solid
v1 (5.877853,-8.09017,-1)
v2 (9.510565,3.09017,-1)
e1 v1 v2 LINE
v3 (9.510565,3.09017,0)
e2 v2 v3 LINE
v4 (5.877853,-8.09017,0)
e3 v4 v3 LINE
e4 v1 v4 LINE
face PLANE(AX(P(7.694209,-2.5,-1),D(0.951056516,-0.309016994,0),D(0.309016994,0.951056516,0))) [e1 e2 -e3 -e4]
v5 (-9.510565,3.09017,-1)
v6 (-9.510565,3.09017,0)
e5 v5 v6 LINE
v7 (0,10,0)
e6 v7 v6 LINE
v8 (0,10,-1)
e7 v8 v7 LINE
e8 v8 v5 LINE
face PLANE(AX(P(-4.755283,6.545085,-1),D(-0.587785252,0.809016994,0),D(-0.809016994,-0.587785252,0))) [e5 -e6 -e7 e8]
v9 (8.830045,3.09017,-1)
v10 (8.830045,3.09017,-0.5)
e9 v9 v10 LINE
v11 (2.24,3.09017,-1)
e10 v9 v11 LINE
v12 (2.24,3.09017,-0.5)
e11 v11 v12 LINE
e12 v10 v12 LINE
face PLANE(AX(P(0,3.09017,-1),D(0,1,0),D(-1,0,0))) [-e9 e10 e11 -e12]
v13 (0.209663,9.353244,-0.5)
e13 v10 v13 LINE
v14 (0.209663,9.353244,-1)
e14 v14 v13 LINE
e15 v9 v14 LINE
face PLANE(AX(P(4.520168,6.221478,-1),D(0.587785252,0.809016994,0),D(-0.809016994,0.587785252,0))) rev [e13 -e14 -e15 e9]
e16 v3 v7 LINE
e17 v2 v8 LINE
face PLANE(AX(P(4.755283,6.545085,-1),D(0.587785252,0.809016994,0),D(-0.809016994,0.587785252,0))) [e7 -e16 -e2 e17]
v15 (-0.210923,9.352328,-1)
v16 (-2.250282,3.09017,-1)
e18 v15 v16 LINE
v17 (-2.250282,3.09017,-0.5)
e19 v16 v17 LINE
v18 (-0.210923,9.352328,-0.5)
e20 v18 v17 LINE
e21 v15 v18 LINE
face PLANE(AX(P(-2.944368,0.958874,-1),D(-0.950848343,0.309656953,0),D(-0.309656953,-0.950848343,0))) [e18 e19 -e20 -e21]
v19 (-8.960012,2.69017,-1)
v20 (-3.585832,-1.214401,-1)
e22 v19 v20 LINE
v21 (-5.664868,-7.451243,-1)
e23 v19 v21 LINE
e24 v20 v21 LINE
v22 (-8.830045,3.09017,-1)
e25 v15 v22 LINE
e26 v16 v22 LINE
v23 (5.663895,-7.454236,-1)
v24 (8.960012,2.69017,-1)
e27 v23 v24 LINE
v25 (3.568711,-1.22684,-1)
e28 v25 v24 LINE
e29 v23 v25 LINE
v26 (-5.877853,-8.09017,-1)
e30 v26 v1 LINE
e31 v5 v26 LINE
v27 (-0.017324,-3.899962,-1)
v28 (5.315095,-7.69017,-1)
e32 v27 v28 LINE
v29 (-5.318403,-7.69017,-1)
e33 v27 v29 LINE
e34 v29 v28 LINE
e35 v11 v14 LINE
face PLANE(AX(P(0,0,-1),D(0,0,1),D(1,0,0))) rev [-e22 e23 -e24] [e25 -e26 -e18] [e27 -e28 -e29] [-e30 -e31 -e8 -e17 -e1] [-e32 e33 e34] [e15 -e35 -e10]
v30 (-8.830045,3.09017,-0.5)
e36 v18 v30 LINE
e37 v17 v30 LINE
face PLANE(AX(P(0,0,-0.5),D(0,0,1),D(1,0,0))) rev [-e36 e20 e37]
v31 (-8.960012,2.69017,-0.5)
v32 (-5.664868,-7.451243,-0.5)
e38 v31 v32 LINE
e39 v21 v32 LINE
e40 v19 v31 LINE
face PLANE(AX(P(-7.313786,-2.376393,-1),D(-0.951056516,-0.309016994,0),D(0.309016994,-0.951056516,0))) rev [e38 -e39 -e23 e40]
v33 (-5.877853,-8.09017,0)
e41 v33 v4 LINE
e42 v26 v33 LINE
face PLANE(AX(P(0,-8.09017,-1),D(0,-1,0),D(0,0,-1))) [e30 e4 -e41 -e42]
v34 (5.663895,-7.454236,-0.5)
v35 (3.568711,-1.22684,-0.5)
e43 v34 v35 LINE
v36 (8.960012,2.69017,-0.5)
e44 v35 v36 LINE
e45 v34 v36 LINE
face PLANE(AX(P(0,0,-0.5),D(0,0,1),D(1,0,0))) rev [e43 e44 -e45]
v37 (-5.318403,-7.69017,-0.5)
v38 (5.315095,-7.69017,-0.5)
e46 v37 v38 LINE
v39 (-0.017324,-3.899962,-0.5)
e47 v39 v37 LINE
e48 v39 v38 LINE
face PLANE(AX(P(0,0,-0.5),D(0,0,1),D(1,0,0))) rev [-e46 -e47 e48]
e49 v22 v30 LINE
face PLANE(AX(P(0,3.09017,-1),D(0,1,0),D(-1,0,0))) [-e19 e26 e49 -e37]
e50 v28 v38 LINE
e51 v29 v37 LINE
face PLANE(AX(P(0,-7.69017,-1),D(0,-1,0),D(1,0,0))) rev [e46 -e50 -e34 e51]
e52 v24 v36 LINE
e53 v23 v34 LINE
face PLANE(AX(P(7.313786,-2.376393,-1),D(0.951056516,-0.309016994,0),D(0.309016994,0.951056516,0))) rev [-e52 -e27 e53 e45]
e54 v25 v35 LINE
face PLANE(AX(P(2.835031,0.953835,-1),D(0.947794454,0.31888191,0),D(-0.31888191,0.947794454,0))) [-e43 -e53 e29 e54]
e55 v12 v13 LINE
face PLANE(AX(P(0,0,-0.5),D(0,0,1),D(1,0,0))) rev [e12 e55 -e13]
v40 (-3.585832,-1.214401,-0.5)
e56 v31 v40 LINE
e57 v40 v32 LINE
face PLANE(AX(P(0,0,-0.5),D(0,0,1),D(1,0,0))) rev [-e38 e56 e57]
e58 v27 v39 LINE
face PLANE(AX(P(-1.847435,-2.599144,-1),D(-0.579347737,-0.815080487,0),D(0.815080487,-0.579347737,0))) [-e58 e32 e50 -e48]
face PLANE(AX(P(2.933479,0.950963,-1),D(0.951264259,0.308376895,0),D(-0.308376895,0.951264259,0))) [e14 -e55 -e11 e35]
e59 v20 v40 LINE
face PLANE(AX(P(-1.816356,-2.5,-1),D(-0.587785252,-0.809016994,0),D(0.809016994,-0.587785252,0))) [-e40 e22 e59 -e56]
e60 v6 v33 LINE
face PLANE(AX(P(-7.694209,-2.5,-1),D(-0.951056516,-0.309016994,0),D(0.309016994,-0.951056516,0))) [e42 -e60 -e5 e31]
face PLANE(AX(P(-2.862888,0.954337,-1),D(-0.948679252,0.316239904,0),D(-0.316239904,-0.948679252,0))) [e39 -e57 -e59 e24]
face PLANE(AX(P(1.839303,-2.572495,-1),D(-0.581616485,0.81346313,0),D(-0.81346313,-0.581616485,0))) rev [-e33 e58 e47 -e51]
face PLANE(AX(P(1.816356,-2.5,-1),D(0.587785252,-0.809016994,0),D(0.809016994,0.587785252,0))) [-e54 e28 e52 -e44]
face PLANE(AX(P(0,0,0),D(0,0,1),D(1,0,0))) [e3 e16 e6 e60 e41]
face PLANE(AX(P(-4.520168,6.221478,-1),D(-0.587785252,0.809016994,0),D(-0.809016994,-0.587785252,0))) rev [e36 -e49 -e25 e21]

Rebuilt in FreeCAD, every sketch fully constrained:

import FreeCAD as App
import Part
import Sketcher
from FreeCAD import Vector
Q = App.Units.Quantity

doc = App.newDocument("Part")
params = doc.addObject("Spreadsheet::Sheet", "Params")
for row, (alias, value) in enumerate([
    ("pad1_length", "1 mm"),
    ("pad2_length", "0.5 mm"),
], start=1):
    params.set(f"A{row}", alias)
    params.set(f"B{row}", "=" + value)
    params.setAlias(f"B{row}", alias)

body = doc.addObject("PartDesign::Body", "Body")

sketch1 = doc.addObject("Sketcher::SketchObject", "Sketch")
body.addObject(sketch1)
sketch1.AttachmentSupport = (doc.XY_Plane, [""])
sketch1.MapMode = "FlatFace"
sketch1.addGeometry(Part.LineSegment(Vector(6, -8, 0), Vector(10, 3, 0)), False)
sketch1.addGeometry(Part.LineSegment(Vector(10, 3, 0), Vector(0, 10, 0)), False)
sketch1.addGeometry(Part.LineSegment(Vector(0, 10, 0), Vector(-10, 3, 0)), False)
sketch1.addGeometry(Part.LineSegment(Vector(-10, 3, 0), Vector(-6, -8, 0)), False)
sketch1.addGeometry(Part.LineSegment(Vector(-6, -8, 0), Vector(6, -8, 0)), False)
sketch1.addGeometry(Part.LineSegment(Vector(0, 9, 0), Vector(9, 3, 0)), False)
sketch1.addGeometry(Part.LineSegment(Vector(9, 3, 0), Vector(2, 3, 0)), False)
sketch1.addGeometry(Part.LineSegment(Vector(2, 3, 0), Vector(0, 9, 0)), False)
sketch1.addGeometry(Part.LineSegment(Vector(-9, 3, 0), Vector(0, 9, 0)), False)
sketch1.addGeometry(Part.LineSegment(Vector(0, 9, 0), Vector(-2, 3, 0)), False)
sketch1.addGeometry(Part.LineSegment(Vector(-2, 3, 0), Vector(-9, 3, 0)), False)
sketch1.addGeometry(Part.LineSegment(Vector(-6, -7, 0), Vector(-9, 3, 0)), False)
sketch1.addGeometry(Part.LineSegment(Vector(-9, 3, 0), Vector(-4, -1, 0)), False)
sketch1.addGeometry(Part.LineSegment(Vector(-4, -1, 0), Vector(-6, -7, 0)), False)
sketch1.addGeometry(Part.LineSegment(Vector(5, -8, 0), Vector(-5, -8, 0)), False)
sketch1.addGeometry(Part.LineSegment(Vector(-5, -8, 0), Vector(0, -4, 0)), False)
sketch1.addGeometry(Part.LineSegment(Vector(0, -4, 0), Vector(5, -8, 0)), False)
sketch1.addGeometry(Part.LineSegment(Vector(9, 3, 0), Vector(6, -7, 0)), False)
sketch1.addGeometry(Part.LineSegment(Vector(6, -7, 0), Vector(4, -1, 0)), False)
sketch1.addGeometry(Part.LineSegment(Vector(4, -1, 0), Vector(9, 3, 0)), False)
sketch1.addConstraint(Sketcher.Constraint("Coincident", 0, 2, 1, 1))
sketch1.addConstraint(Sketcher.Constraint("Coincident", 1, 2, 2, 1))
sketch1.addConstraint(Sketcher.Constraint("Coincident", 2, 2, 3, 1))
sketch1.addConstraint(Sketcher.Constraint("Coincident", 3, 2, 4, 1))
sketch1.addConstraint(Sketcher.Constraint("Coincident", 4, 2, 0, 1))
sketch1.addConstraint(Sketcher.Constraint("Coincident", 5, 2, 6, 1))
sketch1.addConstraint(Sketcher.Constraint("Coincident", 6, 2, 7, 1))
sketch1.addConstraint(Sketcher.Constraint("Coincident", 7, 2, 5, 1))
sketch1.addConstraint(Sketcher.Constraint("Coincident", 8, 2, 9, 1))
sketch1.addConstraint(Sketcher.Constraint("Coincident", 9, 2, 10, 1))
sketch1.addConstraint(Sketcher.Constraint("Coincident", 10, 2, 8, 1))
sketch1.addConstraint(Sketcher.Constraint("Coincident", 11, 2, 12, 1))
sketch1.addConstraint(Sketcher.Constraint("Coincident", 12, 2, 13, 1))
sketch1.addConstraint(Sketcher.Constraint("Coincident", 13, 2, 11, 1))
sketch1.addConstraint(Sketcher.Constraint("Coincident", 14, 2, 15, 1))
sketch1.addConstraint(Sketcher.Constraint("Coincident", 15, 2, 16, 1))
sketch1.addConstraint(Sketcher.Constraint("Coincident", 16, 2, 14, 1))
sketch1.addConstraint(Sketcher.Constraint("Coincident", 17, 2, 18, 1))
sketch1.addConstraint(Sketcher.Constraint("Coincident", 18, 2, 19, 1))
sketch1.addConstraint(Sketcher.Constraint("Coincident", 19, 2, 17, 1))
sketch1.addConstraint(Sketcher.Constraint("Horizontal", 4))
sketch1.addConstraint(Sketcher.Constraint("Horizontal", 6))
sketch1.addConstraint(Sketcher.Constraint("Horizontal", 10))
sketch1.addConstraint(Sketcher.Constraint("Horizontal", 14))
sketch1.addConstraint(Sketcher.Constraint("Symmetric", 0, 2, 2, 2, -2))
sketch1.addConstraint(Sketcher.Constraint("Symmetric", 5, 2, 10, 2, -2))
sketch1.addConstraint(Sketcher.Constraint("Symmetric", 11, 2, 19, 2, -2))
sketch1.addConstraint(Sketcher.Constraint("PointOnObject", 1, 2, -2))
sketch1.addConstraint(Sketcher.Constraint("Parallel", 1, 5))
sketch1.addConstraint(Sketcher.Constraint("Parallel", 2, 8))
sketch1.addConstraint(Sketcher.Constraint("Parallel", 3, 11))
sketch1.addConstraint(Sketcher.Constraint("Parallel", 5, 12))
sketch1.addConstraint(Sketcher.Constraint("Parallel", 0, 17))
sketch1.addConstraint(Sketcher.Constraint("Parallel", 8, 19))
sketch1.addConstraint(Sketcher.Constraint("Horizontal", 2, 2, 5, 2))
sketch1.addConstraint(Sketcher.Constraint("Equal", 0, 1))
sketch1.addConstraint(Sketcher.Constraint("Equal", 2, 3))
sketch1.addConstraint(Sketcher.Constraint("Angle", 0, Q("72 deg")))
sketch1.addConstraint(Sketcher.Constraint("Angle", 1, Q("144 deg")))
sketch1.addConstraint(Sketcher.Constraint("DistanceY", -1, 1, 1, 2, Q("10 mm")))
sketch1.addConstraint(Sketcher.Constraint("DistanceY", 11, 2, 10, 2, Q("0.4 mm")))
sketch1.addConstraint(Sketcher.Constraint("DistanceY", 3, 2, 14, 2, Q("0.4 mm")))
sketch1.addConstraint(Sketcher.Constraint("DistanceX", -1, 1, 6, 2, Q("2.24 mm")))
sketch1.addConstraint(Sketcher.Constraint("Distance", 16, Q("6.542199 mm")))
sketch1.addConstraint(Sketcher.Constraint("DistanceY", 12, 2, -1, 1, Q("1.214401 mm")))
sketch1.addConstraint(Sketcher.Constraint("DistanceX", 16, 2, 17, 2, Q("0.3488 mm")))
sketch1.addConstraint(Sketcher.Constraint("DistanceX", 18, 2, 19, 2, Q("5.391302 mm")))
sketch1.addConstraint(Sketcher.Constraint("Distance", 8, Q("10.65382 mm")))
sketch1.addConstraint(Sketcher.Constraint("Distance", 15, Q("6.51668 mm")))
sketch1.addConstraint(Sketcher.Constraint("Distance", 17, Q("10.66646 mm")))
sketch1.addConstraint(Sketcher.Constraint("DistanceX", 4, 1, 4, 2, Q("11.755705 mm")))
sketch1.addConstraint(Sketcher.Constraint("DistanceX", 6, 2, 6, 1, Q("6.590045 mm")))
sketch1.addConstraint(Sketcher.Constraint("DistanceX", 10, 2, 10, 1, Q("6.579763 mm")))
sketch1.addConstraint(Sketcher.Constraint("DistanceX", 14, 2, 14, 1, Q("10.633498 mm")))
sketch1.addConstraint(Sketcher.Constraint("DistanceX", 12, 2, -1, 1, Q("3.585832 mm")))
sketch1.addConstraint(Sketcher.Constraint("DistanceX", 7, 2, 5, 2, Q("8.620382 mm")))
sketch1.addConstraint(Sketcher.Constraint("DistanceY", 13, 2, 12, 2, Q("6.236842 mm")))
pad1 = doc.addObject("PartDesign::Pad", "Pad")
body.addObject(pad1)
pad1.Profile = sketch1
pad1.setExpression("Length", "Params.pad1_length")
pad1.Reversed = True

sketch2 = doc.addObject("Sketcher::SketchObject", "Sketch001")
body.addObject(sketch2)
sketch2.AttachmentSupport = (doc.XY_Plane, [""])
sketch2.MapMode = "FlatFace"
sketch2.addGeometry(Part.LineSegment(Vector(9, 3, 0), Vector(0, 9, 0)), False)
sketch2.addGeometry(Part.LineSegment(Vector(0, 9, 0), Vector(2, 3, 0)), False)
sketch2.addGeometry(Part.LineSegment(Vector(2, 3, 0), Vector(9, 3, 0)), False)
sketch2.addGeometry(Part.LineSegment(Vector(-2, 3, 0), Vector(0, 9, 0)), False)
sketch2.addGeometry(Part.LineSegment(Vector(0, 9, 0), Vector(-9, 3, 0)), False)
sketch2.addGeometry(Part.LineSegment(Vector(-9, 3, 0), Vector(-2, 3, 0)), False)
sketch2.addGeometry(Part.LineSegment(Vector(-4, -1, 0), Vector(-9, 3, 0)), False)
sketch2.addGeometry(Part.LineSegment(Vector(-9, 3, 0), Vector(-6, -7, 0)), False)
sketch2.addGeometry(Part.LineSegment(Vector(-6, -7, 0), Vector(-4, -1, 0)), False)
sketch2.addGeometry(Part.LineSegment(Vector(0, -4, 0), Vector(-5, -8, 0)), False)
sketch2.addGeometry(Part.LineSegment(Vector(-5, -8, 0), Vector(5, -8, 0)), False)
sketch2.addGeometry(Part.LineSegment(Vector(5, -8, 0), Vector(0, -4, 0)), False)
sketch2.addGeometry(Part.LineSegment(Vector(6, -7, 0), Vector(9, 3, 0)), False)
sketch2.addGeometry(Part.LineSegment(Vector(9, 3, 0), Vector(4, -1, 0)), False)
sketch2.addGeometry(Part.LineSegment(Vector(4, -1, 0), Vector(6, -7, 0)), False)
sketch2.addConstraint(Sketcher.Constraint("Coincident", 0, 2, 1, 1))
sketch2.addConstraint(Sketcher.Constraint("Coincident", 1, 2, 2, 1))
sketch2.addConstraint(Sketcher.Constraint("Coincident", 2, 2, 0, 1))
sketch2.addConstraint(Sketcher.Constraint("Coincident", 3, 2, 4, 1))
sketch2.addConstraint(Sketcher.Constraint("Coincident", 4, 2, 5, 1))
sketch2.addConstraint(Sketcher.Constraint("Coincident", 5, 2, 3, 1))
sketch2.addConstraint(Sketcher.Constraint("Coincident", 6, 2, 7, 1))
sketch2.addConstraint(Sketcher.Constraint("Coincident", 7, 2, 8, 1))
sketch2.addConstraint(Sketcher.Constraint("Coincident", 8, 2, 6, 1))
sketch2.addConstraint(Sketcher.Constraint("Coincident", 9, 2, 10, 1))
sketch2.addConstraint(Sketcher.Constraint("Coincident", 10, 2, 11, 1))
sketch2.addConstraint(Sketcher.Constraint("Coincident", 11, 2, 9, 1))
sketch2.addConstraint(Sketcher.Constraint("Coincident", 12, 2, 13, 1))
sketch2.addConstraint(Sketcher.Constraint("Coincident", 13, 2, 14, 1))
sketch2.addConstraint(Sketcher.Constraint("Coincident", 14, 2, 12, 1))
sketch2.addConstraint(Sketcher.Constraint("Horizontal", 2))
sketch2.addConstraint(Sketcher.Constraint("Horizontal", 5))
sketch2.addConstraint(Sketcher.Constraint("Horizontal", 10))
sketch2.addConstraint(Sketcher.Constraint("Symmetric", 2, 2, 4, 2, -2))
sketch2.addConstraint(Sketcher.Constraint("Symmetric", 6, 2, 12, 2, -2))
sketch2.addConstraint(Sketcher.Constraint("Parallel", 0, 6))
sketch2.addConstraint(Sketcher.Constraint("Parallel", 4, 13))
sketch2.addConstraint(Sketcher.Constraint("Angle", 0, Q("144 deg")))
sketch2.addConstraint(Sketcher.Constraint("Angle", 4, Q("-144 deg")))
sketch2.addConstraint(Sketcher.Constraint("Angle", 7, Q("-72 deg")))
sketch2.addConstraint(Sketcher.Constraint("Angle", 12, Q("72 deg")))
sketch2.addConstraint(Sketcher.Constraint("DistanceY", 6, 2, 4, 2, Q("0.4 mm")))
sketch2.addConstraint(Sketcher.Constraint("DistanceX", -1, 1, 1, 2, Q("2.24 mm")))
sketch2.addConstraint(Sketcher.Constraint("Distance", 11, Q("6.542199 mm")))
sketch2.addConstraint(Sketcher.Constraint("DistanceY", 8, 2, -1, 1, Q("1.214401 mm")))
sketch2.addConstraint(Sketcher.Constraint("DistanceX", 13, 2, 12, 2, Q("5.391302 mm")))
sketch2.addConstraint(Sketcher.Constraint("DistanceX", 10, 2, 14, 2, Q("0.3488 mm")))
sketch2.addConstraint(Sketcher.Constraint("Distance", 4, Q("10.65382 mm")))
sketch2.addConstraint(Sketcher.Constraint("Distance", 9, Q("6.51668 mm")))
sketch2.addConstraint(Sketcher.Constraint("Distance", 12, Q("10.66646 mm")))
sketch2.addConstraint(Sketcher.Constraint("DistanceX", 2, 1, 2, 2, Q("6.590045 mm")))
sketch2.addConstraint(Sketcher.Constraint("DistanceX", 5, 1, 5, 2, Q("6.579763 mm")))
sketch2.addConstraint(Sketcher.Constraint("DistanceX", 10, 1, 10, 2, Q("10.633498 mm")))
sketch2.addConstraint(Sketcher.Constraint("DistanceY", -1, 1, 1, 2, Q("3.09017 mm")))
sketch2.addConstraint(Sketcher.Constraint("DistanceX", 8, 2, -1, 1, Q("3.585832 mm")))
sketch2.addConstraint(Sketcher.Constraint("DistanceY", 9, 2, -1, 1, Q("7.69017 mm")))
sketch2.addConstraint(Sketcher.Constraint("DistanceX", 0, 2, 2, 2, Q("8.620382 mm")))
sketch2.addConstraint(Sketcher.Constraint("DistanceY", 7, 2, 3, 2, Q("16.803571 mm")))
pad2 = doc.addObject("PartDesign::Pad", "Pad001")
body.addObject(pad2)
pad2.Profile = sketch2
pad2.setExpression("Length", "Params.pad2_length")
pad2.Reversed = True

doc.recompute()
